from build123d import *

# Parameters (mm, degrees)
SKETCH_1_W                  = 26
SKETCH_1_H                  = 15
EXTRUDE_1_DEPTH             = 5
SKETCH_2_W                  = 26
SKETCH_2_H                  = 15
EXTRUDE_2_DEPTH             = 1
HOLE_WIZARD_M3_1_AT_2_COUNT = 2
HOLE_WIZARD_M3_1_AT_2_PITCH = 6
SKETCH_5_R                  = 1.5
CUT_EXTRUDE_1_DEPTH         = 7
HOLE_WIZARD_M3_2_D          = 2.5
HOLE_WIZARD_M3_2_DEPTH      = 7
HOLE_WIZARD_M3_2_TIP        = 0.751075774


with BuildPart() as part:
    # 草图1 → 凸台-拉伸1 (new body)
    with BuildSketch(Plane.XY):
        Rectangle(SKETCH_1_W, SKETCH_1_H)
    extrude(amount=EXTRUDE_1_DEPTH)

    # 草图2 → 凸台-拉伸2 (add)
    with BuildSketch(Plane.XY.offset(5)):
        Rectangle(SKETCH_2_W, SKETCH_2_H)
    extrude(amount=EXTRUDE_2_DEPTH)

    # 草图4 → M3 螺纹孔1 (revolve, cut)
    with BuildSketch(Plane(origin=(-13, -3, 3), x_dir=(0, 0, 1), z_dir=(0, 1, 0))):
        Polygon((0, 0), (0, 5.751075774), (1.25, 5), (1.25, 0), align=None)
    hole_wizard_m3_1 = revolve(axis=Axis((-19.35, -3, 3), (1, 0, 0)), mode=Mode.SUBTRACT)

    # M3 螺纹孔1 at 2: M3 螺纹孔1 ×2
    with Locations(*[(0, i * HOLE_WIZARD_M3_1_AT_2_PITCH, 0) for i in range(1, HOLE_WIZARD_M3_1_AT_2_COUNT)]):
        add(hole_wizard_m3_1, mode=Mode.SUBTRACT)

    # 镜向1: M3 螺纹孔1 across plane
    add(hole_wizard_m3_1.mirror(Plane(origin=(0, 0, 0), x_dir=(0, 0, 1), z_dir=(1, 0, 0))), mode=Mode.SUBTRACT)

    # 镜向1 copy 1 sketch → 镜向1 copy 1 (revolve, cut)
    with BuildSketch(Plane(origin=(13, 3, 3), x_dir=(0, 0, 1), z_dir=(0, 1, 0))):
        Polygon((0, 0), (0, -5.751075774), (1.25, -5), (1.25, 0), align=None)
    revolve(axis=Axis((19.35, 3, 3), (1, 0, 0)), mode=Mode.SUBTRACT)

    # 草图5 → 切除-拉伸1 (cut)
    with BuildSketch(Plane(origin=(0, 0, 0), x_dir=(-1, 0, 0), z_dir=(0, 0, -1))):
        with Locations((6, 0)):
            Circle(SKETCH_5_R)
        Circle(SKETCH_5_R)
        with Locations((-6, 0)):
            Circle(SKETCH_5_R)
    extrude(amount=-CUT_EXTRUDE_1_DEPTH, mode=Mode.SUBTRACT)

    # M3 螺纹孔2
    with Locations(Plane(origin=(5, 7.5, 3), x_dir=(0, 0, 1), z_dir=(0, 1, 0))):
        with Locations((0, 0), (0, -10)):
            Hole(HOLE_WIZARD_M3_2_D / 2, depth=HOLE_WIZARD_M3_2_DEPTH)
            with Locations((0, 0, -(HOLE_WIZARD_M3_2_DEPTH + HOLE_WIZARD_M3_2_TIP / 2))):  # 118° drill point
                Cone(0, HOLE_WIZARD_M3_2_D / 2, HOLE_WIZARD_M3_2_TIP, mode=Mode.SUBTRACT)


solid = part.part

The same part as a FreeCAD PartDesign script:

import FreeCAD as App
import Part
import Sketcher
from FreeCAD import Vector
Q = App.Units.Quantity


def add_polygon(sketch, points):
    """Adds a closed chain of lines whose ends are joined by coincident constraints."""
    first, n = sketch.GeometryCount, len(points)
    for a, b in zip(points, points[1:] + points[:1]):
        sketch.addGeometry(Part.LineSegment(App.Vector(*a, 0), App.Vector(*b, 0)), False)
    for i in range(n):
        sketch.addConstraint(Sketcher.Constraint("Coincident", first + i, 2, first + (i + 1) % n, 1))

doc = App.newDocument("Part")
body = doc.addObject("PartDesign::Body", "Body")

sketch1 = doc.addObject("Sketcher::SketchObject", "Sketch")
body.addObject(sketch1)
sketch1.AttachmentSupport = (doc.XY_Plane, [""])
sketch1.MapMode = "FlatFace"
add_polygon(sketch1, [(-13, 8), (-13, -8), (13, -8), (13, 8)])
sketch1.addConstraint([
    Sketcher.Constraint("Vertical", 0),
    Sketcher.Constraint("Horizontal", 1),
    Sketcher.Constraint("Vertical", 2),
    Sketcher.Constraint("Horizontal", 3),
    Sketcher.Constraint("Symmetric", 0, 2, 2, 2, -1, 1),
    Sketcher.Constraint("DistanceX", 1, 1, 1, 2, 26.0),
    Sketcher.Constraint("DistanceY", 0, 2, 0, 1, 15.0),
])
pad1 = doc.addObject("PartDesign::Pad", "Pad")
body.addObject(pad1)
pad1.Profile = sketch1
pad1.Length = 5

sketch2 = doc.addObject("Sketcher::SketchObject", "Sketch001")
body.addObject(sketch2)
sketch2.AttachmentSupport = (doc.XY_Plane, [""])
sketch2.MapMode = "FlatFace"
sketch2.AttachmentOffset = App.Placement(Vector(0, 0, 5), App.Rotation())
add_polygon(sketch2, [(-13, 8), (-13, -8), (13, -8), (13, 8)])
sketch2.addConstraint([
    Sketcher.Constraint("Vertical", 0),
    Sketcher.Constraint("Horizontal", 1),
    Sketcher.Constraint("Vertical", 2),
    Sketcher.Constraint("Horizontal", 3),
    Sketcher.Constraint("Symmetric", 0, 2, 2, 2, -1, 1),
    Sketcher.Constraint("DistanceX", 1, 1, 1, 2, 26.0),
    Sketcher.Constraint("DistanceY", 0, 2, 0, 1, 15.0),
])
pad2 = doc.addObject("PartDesign::Pad", "Pad001")
body.addObject(pad2)
pad2.Profile = sketch2
pad2.Length = 1

sketch3 = doc.addObject("Sketcher::SketchObject", "Sketch002")
body.addObject(sketch3)
sketch3.AttachmentSupport = (doc.XZ_Plane, [""])
sketch3.MapMode = "FlatFace"
sketch3.AttachmentOffset = App.Placement(Vector(0, 0, 3), App.Rotation())
add_polygon(sketch3, [(-7.2, 3), (-13, 3), (-13, 4.2), (-8, 4.2)])
sketch3.addGeometry(Part.LineSegment(Vector(-13, 3, 0), Vector(-7.2, 3, 0)), True)
sketch3.addConstraint([
    Sketcher.Constraint("Horizontal", 0),
    Sketcher.Constraint("Vertical", 1),
    Sketcher.Constraint("Horizontal", 2),
    Sketcher.Constraint("Horizontal", 4),
    Sketcher.Constraint("Coincident", 4, 1, 0, 2),
    Sketcher.Constraint("Equal", 0, 4),
    Sketcher.Constraint("DistanceX", 2, 1, 2, 2, 5.0),
    Sketcher.Constraint("Angle", 3, Q("-59 deg")),
    Sketcher.Constraint("DistanceX", 0, 2, -1, 1, 13.0),
    Sketcher.Constraint("DistanceY", -1, 1, 0, 2, 3.0),
    Sketcher.Constraint("DistanceY", 1, 1, 1, 2, 1.25),
])
groove = doc.addObject("PartDesign::Groove", "Groove")
body.addObject(groove)
groove.Profile = sketch3
groove.ReferenceAxis = (sketch3, ["Axis0"])
groove.Angle = 360
doc.recompute()

linearpattern = doc.addObject("PartDesign::LinearPattern", "LinearPattern")
body.addObject(linearpattern)
linearpattern.Originals = [groove]
linearpattern.Direction = (doc.Y_Axis, [""])
linearpattern.Mode = "offset"
linearpattern.Offset = 6
linearpattern.Occurrences = 2
body.Tip = linearpattern
doc.recompute()

mirrored = doc.addObject("PartDesign::Mirrored", "Mirrored")
body.addObject(mirrored)
mirrored.Originals = [groove]
mirrored.MirrorPlane = (doc.YZ_Plane, [""])
body.Tip = mirrored

sketch4 = doc.addObject("Sketcher::SketchObject", "Sketch003")
body.addObject(sketch4)
sketch4.AttachmentSupport = (doc.XZ_Plane, [""])
sketch4.MapMode = "FlatFace"
sketch4.AttachmentOffset = App.Placement(Vector(0, 0, -3), App.Rotation())
add_polygon(sketch4, [(13, 3), (7.2, 3), (8, 4.2), (13, 4.2)])
sketch4.addGeometry(Part.LineSegment(Vector(7.2, 3, 0), Vector(13, 3, 0)), True)
sketch4.addConstraint([
    Sketcher.Constraint("Horizontal", 0),
    Sketcher.Constraint("Horizontal", 2),
    Sketcher.Constraint("Vertical", 3),
    Sketcher.Constraint("Horizontal", 4),
    Sketcher.Constraint("Coincident", 4, 1, 0, 2),
    Sketcher.Constraint("Vertical", 2, 2, 4, 2),
    Sketcher.Constraint("DistanceX", 2, 1, 2, 2, 5.0),
    Sketcher.Constraint("Angle", 1, Q("59 deg")),
    Sketcher.Constraint("DistanceY", -1, 1, 0, 2, 3.0),
    Sketcher.Constraint("DistanceX", -1, 1, 1, 2, 8.0),
    Sketcher.Constraint("DistanceY", 3, 2, 3, 1, 1.25),
])
groove2 = doc.addObject("PartDesign::Groove", "Groove001")
body.addObject(groove2)
groove2.Profile = sketch4
groove2.ReferenceAxis = (sketch4, ["Axis0"])
groove2.Angle = 360

sketch5 = doc.addObject("Sketcher::SketchObject", "Sketch004")
body.addObject(sketch5)
sketch5.AttachmentSupport = (doc.XY_Plane, [""])
sketch5.MapMode = "FlatFace"
sketch5.addGeometry([
    Part.Circle(Vector(-6, 0, 0), Vector(0, 0, 1), 1.5),
    Part.Circle(Vector(0, 0, 0), Vector(0, 0, 1), 1.5),
    Part.Circle(Vector(6, 0, 0), Vector(0, 0, 1), 1.5),
], False)
sketch5.addConstraint([
    Sketcher.Constraint("Coincident", 1, 3, -1, 1),
    Sketcher.Constraint("Equal", 0, 1),
    Sketcher.Constraint("Equal", 1, 2),
    Sketcher.Constraint("Symmetric", 0, 3, 2, 3, -1, 1),
    Sketcher.Constraint("PointOnObject", 0, 3, -1),
    Sketcher.Constraint("Diameter", 0, 3.0),
    Sketcher.Constraint("DistanceX", 0, 3, -1, 1, 6.0),
])
pocket1 = doc.addObject("PartDesign::Pocket", "Pocket")
body.addObject(pocket1)
pocket1.Profile = sketch5
pocket1.Length = 7
pocket1.Reversed = True

sketch6 = doc.addObject("Sketcher::SketchObject", "Sketch005")
body.addObject(sketch6)
sketch6.AttachmentSupport = (doc.XZ_Plane, [""])
sketch6.MapMode = "FlatFace"
sketch6.AttachmentOffset = App.Placement(Vector(0, 0, -7.5), App.Rotation())
sketch6.addGeometry([
    Part.Circle(Vector(5, 3, 0), Vector(0, 0, 1), 1.2),
    Part.Circle(Vector(-5, 3, 0), Vector(0, 0, 1), 1.2),
], False)
sketch6.addConstraint([
    Sketcher.Constraint("Equal", 0, 1),
    Sketcher.Constraint("Symmetric", 0, 3, 1, 3, -2),
    Sketcher.Constraint("Diameter", 0, 2.5),
    Sketcher.Constraint("DistanceX", -1, 1, 0, 3, 5.0),
    Sketcher.Constraint("DistanceY", -1, 1, 0, 3, 3.0),
])
doc.recompute()
hole = doc.addObject("PartDesign::Hole", "Hole")
body.addObject(hole)
hole.Profile = sketch6
hole.ThreadType = "None"
hole.Diameter = 2.5
hole.DepthType = "Dimension"
hole.Depth = 7
hole.DrillPoint = "Angled"
hole.DrillPointAngle = 118
hole.Reversed = True

doc.recompute()
